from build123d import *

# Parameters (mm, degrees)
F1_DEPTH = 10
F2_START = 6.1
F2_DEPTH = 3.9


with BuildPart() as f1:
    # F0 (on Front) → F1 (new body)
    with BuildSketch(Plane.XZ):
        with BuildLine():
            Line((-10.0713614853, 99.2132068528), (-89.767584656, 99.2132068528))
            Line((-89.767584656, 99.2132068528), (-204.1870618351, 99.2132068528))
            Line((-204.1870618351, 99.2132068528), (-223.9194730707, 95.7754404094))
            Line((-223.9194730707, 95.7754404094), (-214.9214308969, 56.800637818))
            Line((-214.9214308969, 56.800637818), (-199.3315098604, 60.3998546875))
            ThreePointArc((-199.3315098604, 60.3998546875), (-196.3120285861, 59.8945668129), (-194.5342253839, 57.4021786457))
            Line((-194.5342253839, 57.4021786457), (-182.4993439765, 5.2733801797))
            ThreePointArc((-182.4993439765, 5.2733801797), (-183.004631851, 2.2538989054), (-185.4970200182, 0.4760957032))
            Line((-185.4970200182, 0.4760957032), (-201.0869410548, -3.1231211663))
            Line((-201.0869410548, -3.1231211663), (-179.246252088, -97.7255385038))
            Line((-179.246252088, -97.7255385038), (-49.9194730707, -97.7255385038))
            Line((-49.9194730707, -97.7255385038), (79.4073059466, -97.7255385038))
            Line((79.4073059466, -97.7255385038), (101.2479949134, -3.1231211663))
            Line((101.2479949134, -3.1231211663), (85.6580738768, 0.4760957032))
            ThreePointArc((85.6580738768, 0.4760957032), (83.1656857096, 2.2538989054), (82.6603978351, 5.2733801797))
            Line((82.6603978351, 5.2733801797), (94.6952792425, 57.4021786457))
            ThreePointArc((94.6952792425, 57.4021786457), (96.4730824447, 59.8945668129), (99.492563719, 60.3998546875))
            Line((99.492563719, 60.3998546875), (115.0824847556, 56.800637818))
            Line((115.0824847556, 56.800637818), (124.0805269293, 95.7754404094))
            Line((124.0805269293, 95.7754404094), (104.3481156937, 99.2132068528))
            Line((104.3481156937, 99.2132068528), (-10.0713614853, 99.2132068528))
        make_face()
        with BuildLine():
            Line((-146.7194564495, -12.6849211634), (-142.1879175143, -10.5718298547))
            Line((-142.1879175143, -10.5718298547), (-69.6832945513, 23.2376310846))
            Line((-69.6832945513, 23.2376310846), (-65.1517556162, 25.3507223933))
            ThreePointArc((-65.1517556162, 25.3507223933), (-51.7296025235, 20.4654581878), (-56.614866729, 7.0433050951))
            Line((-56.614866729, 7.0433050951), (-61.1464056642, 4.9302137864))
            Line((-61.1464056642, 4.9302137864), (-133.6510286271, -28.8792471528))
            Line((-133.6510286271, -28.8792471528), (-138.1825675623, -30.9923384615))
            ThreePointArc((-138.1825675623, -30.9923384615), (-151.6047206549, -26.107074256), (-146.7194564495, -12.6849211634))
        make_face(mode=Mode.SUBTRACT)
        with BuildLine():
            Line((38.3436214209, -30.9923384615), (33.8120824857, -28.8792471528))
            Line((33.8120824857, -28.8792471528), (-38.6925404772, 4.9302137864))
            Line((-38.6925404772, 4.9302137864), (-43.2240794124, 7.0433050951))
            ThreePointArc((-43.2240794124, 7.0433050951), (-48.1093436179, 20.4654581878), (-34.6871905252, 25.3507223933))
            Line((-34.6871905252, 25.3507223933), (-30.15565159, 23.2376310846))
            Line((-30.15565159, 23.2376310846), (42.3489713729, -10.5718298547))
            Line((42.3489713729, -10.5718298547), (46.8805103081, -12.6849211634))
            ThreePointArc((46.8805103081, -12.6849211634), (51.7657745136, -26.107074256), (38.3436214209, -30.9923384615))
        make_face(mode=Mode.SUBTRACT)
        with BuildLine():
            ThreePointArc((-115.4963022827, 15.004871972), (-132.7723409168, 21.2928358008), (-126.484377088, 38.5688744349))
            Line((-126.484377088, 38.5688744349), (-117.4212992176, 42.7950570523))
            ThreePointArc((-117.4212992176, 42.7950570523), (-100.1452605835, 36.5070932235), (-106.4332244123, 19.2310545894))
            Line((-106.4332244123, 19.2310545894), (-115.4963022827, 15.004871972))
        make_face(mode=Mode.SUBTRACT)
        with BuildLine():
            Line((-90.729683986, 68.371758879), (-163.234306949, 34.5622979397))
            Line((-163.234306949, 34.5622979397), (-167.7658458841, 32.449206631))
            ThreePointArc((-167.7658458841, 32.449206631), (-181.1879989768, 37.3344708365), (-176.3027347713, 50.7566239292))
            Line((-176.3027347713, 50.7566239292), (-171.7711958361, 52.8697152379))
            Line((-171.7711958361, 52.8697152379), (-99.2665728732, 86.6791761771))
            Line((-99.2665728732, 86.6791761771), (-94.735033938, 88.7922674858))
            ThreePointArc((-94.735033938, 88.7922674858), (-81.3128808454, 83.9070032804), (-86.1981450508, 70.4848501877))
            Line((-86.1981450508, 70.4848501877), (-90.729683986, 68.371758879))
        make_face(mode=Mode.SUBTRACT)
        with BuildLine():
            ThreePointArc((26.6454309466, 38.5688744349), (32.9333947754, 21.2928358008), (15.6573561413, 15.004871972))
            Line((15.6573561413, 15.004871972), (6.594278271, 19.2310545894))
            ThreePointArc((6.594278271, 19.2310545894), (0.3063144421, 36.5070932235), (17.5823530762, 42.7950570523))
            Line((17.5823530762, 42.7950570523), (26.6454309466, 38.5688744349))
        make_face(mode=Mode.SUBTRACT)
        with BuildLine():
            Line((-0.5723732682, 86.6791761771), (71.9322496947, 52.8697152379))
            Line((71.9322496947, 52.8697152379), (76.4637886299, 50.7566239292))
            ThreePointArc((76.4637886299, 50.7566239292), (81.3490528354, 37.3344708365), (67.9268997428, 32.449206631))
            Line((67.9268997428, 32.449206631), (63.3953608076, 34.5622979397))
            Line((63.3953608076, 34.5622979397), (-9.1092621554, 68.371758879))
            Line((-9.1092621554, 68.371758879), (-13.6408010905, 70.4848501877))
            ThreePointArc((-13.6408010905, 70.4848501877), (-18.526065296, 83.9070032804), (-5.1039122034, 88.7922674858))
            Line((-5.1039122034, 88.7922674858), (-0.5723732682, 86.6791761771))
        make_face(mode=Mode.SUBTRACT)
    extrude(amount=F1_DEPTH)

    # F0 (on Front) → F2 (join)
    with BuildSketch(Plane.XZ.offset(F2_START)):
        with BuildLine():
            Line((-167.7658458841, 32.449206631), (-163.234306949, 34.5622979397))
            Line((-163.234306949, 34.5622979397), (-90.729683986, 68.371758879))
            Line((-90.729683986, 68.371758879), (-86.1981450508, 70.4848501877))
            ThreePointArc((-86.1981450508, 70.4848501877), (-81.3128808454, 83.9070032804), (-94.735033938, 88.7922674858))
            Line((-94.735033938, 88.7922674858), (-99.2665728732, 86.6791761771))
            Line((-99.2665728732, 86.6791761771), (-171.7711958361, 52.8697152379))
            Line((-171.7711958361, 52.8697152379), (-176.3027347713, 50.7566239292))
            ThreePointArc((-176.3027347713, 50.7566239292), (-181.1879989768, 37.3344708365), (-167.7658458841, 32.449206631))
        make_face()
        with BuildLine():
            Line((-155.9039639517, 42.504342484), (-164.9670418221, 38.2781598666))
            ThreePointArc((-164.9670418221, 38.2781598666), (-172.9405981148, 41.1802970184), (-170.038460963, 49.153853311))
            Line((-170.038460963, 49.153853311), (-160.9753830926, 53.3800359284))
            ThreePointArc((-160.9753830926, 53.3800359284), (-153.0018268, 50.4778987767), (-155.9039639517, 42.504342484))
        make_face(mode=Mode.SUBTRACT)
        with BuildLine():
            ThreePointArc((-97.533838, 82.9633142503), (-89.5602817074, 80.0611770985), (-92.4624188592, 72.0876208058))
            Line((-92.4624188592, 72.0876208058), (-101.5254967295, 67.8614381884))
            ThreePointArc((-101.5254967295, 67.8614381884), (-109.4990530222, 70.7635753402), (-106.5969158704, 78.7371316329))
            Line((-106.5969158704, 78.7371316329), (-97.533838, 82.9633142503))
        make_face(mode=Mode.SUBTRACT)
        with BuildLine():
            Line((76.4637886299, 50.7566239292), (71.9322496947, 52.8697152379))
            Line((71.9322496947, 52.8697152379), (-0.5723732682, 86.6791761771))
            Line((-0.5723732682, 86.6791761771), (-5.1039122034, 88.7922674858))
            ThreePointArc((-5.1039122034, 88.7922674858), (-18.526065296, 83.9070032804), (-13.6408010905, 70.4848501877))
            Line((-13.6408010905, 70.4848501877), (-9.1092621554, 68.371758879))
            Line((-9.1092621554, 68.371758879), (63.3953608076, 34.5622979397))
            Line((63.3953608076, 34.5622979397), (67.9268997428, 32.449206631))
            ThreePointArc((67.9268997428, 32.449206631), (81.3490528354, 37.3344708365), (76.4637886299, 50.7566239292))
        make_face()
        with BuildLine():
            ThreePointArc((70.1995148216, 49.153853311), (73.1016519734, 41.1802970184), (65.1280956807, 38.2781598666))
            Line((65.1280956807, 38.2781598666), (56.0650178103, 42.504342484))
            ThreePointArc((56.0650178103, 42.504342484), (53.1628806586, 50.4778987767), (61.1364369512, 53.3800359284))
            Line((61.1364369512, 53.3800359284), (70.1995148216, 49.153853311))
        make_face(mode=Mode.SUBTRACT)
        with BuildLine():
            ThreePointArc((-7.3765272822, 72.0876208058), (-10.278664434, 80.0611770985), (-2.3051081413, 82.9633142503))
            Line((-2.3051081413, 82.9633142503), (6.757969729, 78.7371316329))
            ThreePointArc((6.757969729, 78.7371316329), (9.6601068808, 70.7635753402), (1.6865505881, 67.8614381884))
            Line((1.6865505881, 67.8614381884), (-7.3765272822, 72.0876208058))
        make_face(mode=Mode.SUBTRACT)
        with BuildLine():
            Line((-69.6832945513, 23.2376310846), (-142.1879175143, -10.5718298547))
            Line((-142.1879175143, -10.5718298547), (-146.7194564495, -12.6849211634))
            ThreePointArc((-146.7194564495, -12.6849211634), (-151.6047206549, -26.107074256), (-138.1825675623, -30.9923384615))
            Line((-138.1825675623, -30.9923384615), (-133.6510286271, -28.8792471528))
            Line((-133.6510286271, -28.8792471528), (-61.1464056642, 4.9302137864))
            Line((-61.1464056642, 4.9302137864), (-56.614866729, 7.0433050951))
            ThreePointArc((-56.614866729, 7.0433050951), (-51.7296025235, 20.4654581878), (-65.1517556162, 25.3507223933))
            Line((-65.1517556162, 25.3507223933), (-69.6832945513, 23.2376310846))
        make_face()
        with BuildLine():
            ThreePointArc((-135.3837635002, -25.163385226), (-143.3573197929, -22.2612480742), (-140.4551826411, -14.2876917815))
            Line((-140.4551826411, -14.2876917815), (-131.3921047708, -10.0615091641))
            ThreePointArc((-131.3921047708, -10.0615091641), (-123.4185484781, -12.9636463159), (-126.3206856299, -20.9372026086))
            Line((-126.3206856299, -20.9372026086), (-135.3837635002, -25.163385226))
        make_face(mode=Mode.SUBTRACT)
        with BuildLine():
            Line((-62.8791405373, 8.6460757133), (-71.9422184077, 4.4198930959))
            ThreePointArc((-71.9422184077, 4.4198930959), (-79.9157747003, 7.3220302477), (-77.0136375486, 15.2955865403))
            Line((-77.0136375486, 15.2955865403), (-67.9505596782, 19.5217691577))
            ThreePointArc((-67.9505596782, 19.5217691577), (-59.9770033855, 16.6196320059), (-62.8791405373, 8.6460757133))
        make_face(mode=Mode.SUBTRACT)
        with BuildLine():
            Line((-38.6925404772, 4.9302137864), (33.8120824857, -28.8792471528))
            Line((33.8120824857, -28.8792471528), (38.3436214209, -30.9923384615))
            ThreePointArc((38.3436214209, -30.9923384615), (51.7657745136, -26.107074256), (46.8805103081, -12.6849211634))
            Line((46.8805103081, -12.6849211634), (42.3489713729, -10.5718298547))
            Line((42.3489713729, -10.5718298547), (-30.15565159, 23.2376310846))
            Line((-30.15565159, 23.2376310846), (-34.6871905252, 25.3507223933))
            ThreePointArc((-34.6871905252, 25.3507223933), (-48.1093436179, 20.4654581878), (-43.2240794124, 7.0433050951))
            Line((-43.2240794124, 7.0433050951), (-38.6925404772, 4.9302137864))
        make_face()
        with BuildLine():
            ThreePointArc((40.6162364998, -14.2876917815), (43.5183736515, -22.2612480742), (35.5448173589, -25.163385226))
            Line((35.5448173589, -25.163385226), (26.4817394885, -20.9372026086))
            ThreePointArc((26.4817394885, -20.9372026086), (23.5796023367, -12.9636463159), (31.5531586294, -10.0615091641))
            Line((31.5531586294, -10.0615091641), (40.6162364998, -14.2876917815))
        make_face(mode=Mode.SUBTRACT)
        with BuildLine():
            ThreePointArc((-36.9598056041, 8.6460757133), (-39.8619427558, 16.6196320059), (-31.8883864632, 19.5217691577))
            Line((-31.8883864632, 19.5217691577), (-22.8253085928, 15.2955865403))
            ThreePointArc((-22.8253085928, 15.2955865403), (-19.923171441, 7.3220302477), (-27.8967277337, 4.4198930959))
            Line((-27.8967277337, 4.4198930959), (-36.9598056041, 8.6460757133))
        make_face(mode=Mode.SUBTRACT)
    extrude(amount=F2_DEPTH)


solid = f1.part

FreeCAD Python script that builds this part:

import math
import FreeCAD as App
import Part
import Sketcher
Q = App.Units.Quantity

doc = App.newDocument("Part")
params = doc.addObject("Spreadsheet::Sheet", "Params")
for row, (alias, value) in enumerate([
    ("sketch1_radius", "4 mm"),
    ("sketch1_radius2", "13 mm"),
    ("sketch1_radius3", "10.1 mm"),
    ("sketch1_length", "40 mm"),
    ("sketch1_length2", "16 mm"),
    ("pad1_length", "10 mm"),
    ("sketch2_radius", "6 mm"),
    ("sketch2_radius2", "10.1 mm"),
    ("sketch2_length", "5 mm"),
    ("sketch2_length2", "80 mm"),
    ("sketch2_length3", "10 mm"),
    ("pad2_length", "3.9 mm"),
], start=1):
    params.set(f"A{row}", alias)
    params.set(f"B{row}", "=" + value)
    params.setAlias(f"B{row}", alias)

body = doc.addObject("PartDesign::Body", "Body")

# Sketch on XZ plane
sketch1 = doc.addObject("Sketcher::SketchObject", "Sketch")
body.addObject(sketch1)
sketch1.AttachmentSupport = (doc.XZ_Plane, [""])
sketch1.MapMode = "FlatFace"
sketch1.addGeometry(Part.LineSegment(App.Vector(-204.187062, 99.213207, 0), App.Vector(-223.919473, 95.77544, 0)), False)
sketch1.addGeometry(Part.LineSegment(App.Vector(-223.919473, 95.77544, 0), App.Vector(-214.921431, 56.800638, 0)), False)
sketch1.addGeometry(Part.LineSegment(App.Vector(-214.921431, 56.800638, 0), App.Vector(-199.33151, 60.399855, 0)), False)
sketch1.addGeometry(Part.ArcOfCircle(Part.Circle(App.Vector(-198.431706, 56.502374, 0), App.Vector(0, 0, 1), 4), math.radians(13), math.radians(103)), False)
sketch1.addGeometry(Part.LineSegment(App.Vector(-194.534225, 57.402179, 0), App.Vector(-182.499344, 5.27338, 0)), False)
sketch1.addGeometry(Part.ArcOfCircle(Part.Circle(App.Vector(-186.396824, 4.373576, 0), App.Vector(0, 0, 1), 4), math.radians(-77), math.radians(13)), False)
sketch1.addGeometry(Part.LineSegment(App.Vector(-185.49702, 0.476096, 0), App.Vector(-201.086941, -3.123121, 0)), False)
sketch1.addGeometry(Part.LineSegment(App.Vector(-201.086941, -3.123121, 0), App.Vector(-179.246252, -97.725539, 0)), False)
sketch1.addGeometry(Part.LineSegment(App.Vector(-179.246252, -97.725539, 0), App.Vector(79.407306, -97.725539, 0)), False)
sketch1.addGeometry(Part.LineSegment(App.Vector(79.407306, -97.725539, 0), App.Vector(101.247995, -3.123121, 0)), False)
sketch1.addGeometry(Part.LineSegment(App.Vector(101.247995, -3.123121, 0), App.Vector(85.658074, 0.476096, 0)), False)
sketch1.addGeometry(Part.ArcOfCircle(Part.Circle(App.Vector(86.557878, 4.373576, 0), App.Vector(0, 0, 1), 4), math.radians(167), math.radians(257)), False)
sketch1.addGeometry(Part.LineSegment(App.Vector(82.660398, 5.27338, 0), App.Vector(94.695279, 57.402179, 0)), False)
sketch1.addGeometry(Part.ArcOfCircle(Part.Circle(App.Vector(98.59276, 56.502374, 0), App.Vector(0, 0, 1), 4), math.radians(77), math.radians(167)), False)
sketch1.addGeometry(Part.LineSegment(App.Vector(99.492564, 60.399855, 0), App.Vector(115.082485, 56.800638, 0)), False)
sketch1.addGeometry(Part.LineSegment(App.Vector(115.082485, 56.800638, 0), App.Vector(124.080527, 95.77544, 0)), False)
sketch1.addGeometry(Part.LineSegment(App.Vector(124.080527, 95.77544, 0), App.Vector(104.348116, 99.213207, 0)), False)
sketch1.addGeometry(Part.LineSegment(App.Vector(104.348116, 99.213207, 0), App.Vector(-204.187062, 99.213207, 0)), False)
sketch1.addGeometry(Part.ArcOfCircle(Part.Circle(App.Vector(-142.451012, -21.83863, 0), App.Vector(0, 0, 1), 10.1), math.radians(115), math.radians(295)), False)
sketch1.addGeometry(Part.LineSegment(App.Vector(-146.719456, -12.684921, 0), App.Vector(-142.187918, -10.57183, 0)), False)
sketch1.addGeometry(Part.LineSegment(App.Vector(-142.187918, -10.57183, 0), App.Vector(-69.683295, 23.237631, 0)), False)
sketch1.addGeometry(Part.LineSegment(App.Vector(-69.683295, 23.237631, 0), App.Vector(-65.151756, 25.350722, 0)), False)
sketch1.addGeometry(Part.ArcOfCircle(Part.Circle(App.Vector(-60.883311, 16.197014, 0), App.Vector(0, 0, 1), 10.1), math.radians(-65), math.radians(115)), False)
sketch1.addGeometry(Part.LineSegment(App.Vector(-56.614867, 7.043305, 0), App.Vector(-61.146406, 4.930214, 0)), False)
sketch1.addGeometry(Part.LineSegment(App.Vector(-61.146406, 4.930214, 0), App.Vector(-133.651029, -28.879247, 0)), False)
sketch1.addGeometry(Part.LineSegment(App.Vector(-133.651029, -28.879247, 0), App.Vector(-138.182568, -30.992338, 0)), False)
sketch1.addGeometry(Part.ArcOfCircle(Part.Circle(App.Vector(42.612066, -21.83863, 0), App.Vector(0, 0, 1), 10.1), math.radians(-115), math.radians(65)), False)
sketch1.addGeometry(Part.LineSegment(App.Vector(38.343621, -30.992338, 0), App.Vector(33.812082, -28.879247, 0)), False)
sketch1.addGeometry(Part.LineSegment(App.Vector(33.812082, -28.879247, 0), App.Vector(-38.69254, 4.930214, 0)), False)
sketch1.addGeometry(Part.LineSegment(App.Vector(-38.69254, 4.930214, 0), App.Vector(-43.224079, 7.043305, 0)), False)
sketch1.addGeometry(Part.ArcOfCircle(Part.Circle(App.Vector(-38.955635, 16.197014, 0), App.Vector(0, 0, 1), 10.1), math.radians(65), math.radians(245)), False)
sketch1.addGeometry(Part.LineSegment(App.Vector(-34.687191, 25.350722, 0), App.Vector(-30.155652, 23.237631, 0)), False)
sketch1.addGeometry(Part.LineSegment(App.Vector(-30.155652, 23.237631, 0), App.Vector(42.348971, -10.57183, 0)), False)
sketch1.addGeometry(Part.LineSegment(App.Vector(42.348971, -10.57183, 0), App.Vector(46.88051, -12.684921, 0)), False)
sketch1.addGeometry(Part.LineSegment(App.Vector(-106.433224, 19.231055, 0), App.Vector(-115.496302, 15.004872, 0)), False)
sketch1.addGeometry(Part.ArcOfCircle(Part.Circle(App.Vector(-120.99034, 26.786873, 0), App.Vector(0, 0, 1), 13), math.radians(115), math.radians(295)), False)
sketch1.addGeometry(Part.LineSegment(App.Vector(-126.484377, 38.568874, 0), App.Vector(-117.421299, 42.795057, 0)), False)
sketch1.addGeometry(Part.ArcOfCircle(Part.Circle(App.Vector(-111.927262, 31.013056, 0), App.Vector(0, 0, 1), 13), math.radians(-65), math.radians(115)), False)
sketch1.addGeometry(Part.LineSegment(App.Vector(-86.198145, 70.48485, 0), App.Vector(-90.729684, 68.371759, 0)), False)
sketch1.addGeometry(Part.LineSegment(App.Vector(-90.729684, 68.371759, 0), App.Vector(-163.234307, 34.562298, 0)), False)
sketch1.addGeometry(Part.LineSegment(App.Vector(-163.234307, 34.562298, 0), App.Vector(-167.765846, 32.449207, 0)), False)
sketch1.addGeometry(Part.ArcOfCircle(Part.Circle(App.Vector(-172.03429, 41.602915, 0), App.Vector(0, 0, 1), 10.1), math.radians(115), math.radians(295)), False)
sketch1.addGeometry(Part.LineSegment(App.Vector(-176.302735, 50.756624, 0), App.Vector(-171.771196, 52.869715, 0)), False)
sketch1.addGeometry(Part.LineSegment(App.Vector(-171.771196, 52.869715, 0), App.Vector(-99.266573, 86.679176, 0)), False)
sketch1.addGeometry(Part.LineSegment(App.Vector(-99.266573, 86.679176, 0), App.Vector(-94.735034, 88.792267, 0)), False)
sketch1.addGeometry(Part.ArcOfCircle(Part.Circle(App.Vector(-90.466589, 79.638559, 0), App.Vector(0, 0, 1), 10.1), math.radians(-65), math.radians(115)), False)
sketch1.addGeometry(Part.LineSegment(App.Vector(17.582353, 42.795057, 0), App.Vector(26.645431, 38.568874, 0)), False)
sketch1.addGeometry(Part.ArcOfCircle(Part.Circle(App.Vector(21.151394, 26.786873, 0), App.Vector(0, 0, 1), 13), math.radians(-115), math.radians(65)), False)
sketch1.addGeometry(Part.LineSegment(App.Vector(15.657356, 15.004872, 0), App.Vector(6.594278, 19.231055, 0)), False)
sketch1.addGeometry(Part.ArcOfCircle(Part.Circle(App.Vector(12.088316, 31.013056, 0), App.Vector(0, 0, 1), 13), math.radians(65), math.radians(245)), False)
sketch1.addGeometry(Part.LineSegment(App.Vector(-5.103912, 88.792267, 0), App.Vector(-0.572373, 86.679176, 0)), False)
sketch1.addGeometry(Part.LineSegment(App.Vector(-0.572373, 86.679176, 0), App.Vector(71.93225, 52.869715, 0)), False)
sketch1.addGeometry(Part.LineSegment(App.Vector(71.93225, 52.869715, 0), App.Vector(76.463789, 50.756624, 0)), False)
sketch1.addGeometry(Part.ArcOfCircle(Part.Circle(App.Vector(72.195344, 41.602915, 0), App.Vector(0, 0, 1), 10.1), math.radians(-115), math.radians(65)), False)
sketch1.addGeometry(Part.LineSegment(App.Vector(67.9269, 32.449207, 0), App.Vector(63.395361, 34.562298, 0)), False)
sketch1.addGeometry(Part.LineSegment(App.Vector(63.395361, 34.562298, 0), App.Vector(-9.109262, 68.371759, 0)), False)
sketch1.addGeometry(Part.LineSegment(App.Vector(-9.109262, 68.371759, 0), App.Vector(-13.640801, 70.48485, 0)), False)
sketch1.addGeometry(Part.ArcOfCircle(Part.Circle(App.Vector(-9.372357, 79.638559, 0), App.Vector(0, 0, 1), 10.1), math.radians(65), math.radians(245)), False)
sketch1.addConstraint(Sketcher.Constraint("Coincident", 0, 2, 1, 1))
sketch1.addConstraint(Sketcher.Constraint("Coincident", 1, 2, 2, 1))
sketch1.addConstraint(Sketcher.Constraint("Tangent", 2, 2, 3, 2))
sketch1.addConstraint(Sketcher.Constraint("Tangent", 3, 1, 4, 1))
sketch1.addConstraint(Sketcher.Constraint("Tangent", 4, 2, 5, 2))
sketch1.addConstraint(Sketcher.Constraint("Tangent", 5, 1, 6, 1))
sketch1.addConstraint(Sketcher.Constraint("Coincident", 6, 2, 7, 1))
sketch1.addConstraint(Sketcher.Constraint("Coincident", 7, 2, 8, 1))
sketch1.addConstraint(Sketcher.Constraint("Coincident", 8, 2, 9, 1))
sketch1.addConstraint(Sketcher.Constraint("Coincident", 9, 2, 10, 1))
sketch1.addConstraint(Sketcher.Constraint("Tangent", 10, 2, 11, 2))
sketch1.addConstraint(Sketcher.Constraint("Tangent", 11, 1, 12, 1))
sketch1.addConstraint(Sketcher.Constraint("Tangent", 12, 2, 13, 2))
sketch1.addConstraint(Sketcher.Constraint("Tangent", 13, 1, 14, 1))
sketch1.addConstraint(Sketcher.Constraint("Coincident", 14, 2, 15, 1))
sketch1.addConstraint(Sketcher.Constraint("Coincident", 15, 2, 16, 1))
sketch1.addConstraint(Sketcher.Constraint("Coincident", 16, 2, 17, 1))
sketch1.addConstraint(Sketcher.Constraint("Coincident", 17, 2, 0, 1))
sketch1.addConstraint(Sketcher.Constraint("Tangent", 18, 1, 19, 1))
sketch1.addConstraint(Sketcher.Constraint("Coincident", 19, 2, 20, 1))
sketch1.addConstraint(Sketcher.Constraint("Coincident", 20, 2, 21, 1))
sketch1.addConstraint(Sketcher.Constraint("Tangent", 21, 2, 22, 2))
sketch1.addConstraint(Sketcher.Constraint("Tangent", 22, 1, 23, 1))
sketch1.addConstraint(Sketcher.Constraint("Coincident", 23, 2, 24, 1))
sketch1.addConstraint(Sketcher.Constraint("Coincident", 24, 2, 25, 1))
sketch1.addConstraint(Sketcher.Constraint("Tangent", 25, 2, 18, 2))
sketch1.addConstraint(Sketcher.Constraint("Tangent", 26, 1, 27, 1))
sketch1.addConstraint(Sketcher.Constraint("Coincident", 27, 2, 28, 1))
sketch1.addConstraint(Sketcher.Constraint("Coincident", 28, 2, 29, 1))
sketch1.addConstraint(Sketcher.Constraint("Tangent", 29, 2, 30, 2))
sketch1.addConstraint(Sketcher.Constraint("Tangent", 30, 1, 31, 1))
sketch1.addConstraint(Sketcher.Constraint("Coincident", 31, 2, 32, 1))
sketch1.addConstraint(Sketcher.Constraint("Coincident", 32, 2, 33, 1))
sketch1.addConstraint(Sketcher.Constraint("Tangent", 33, 2, 26, 2))
sketch1.addConstraint(Sketcher.Constraint("Tangent", 34, 2, 35, 2))
sketch1.addConstraint(Sketcher.Constraint("Tangent", 35, 1, 36, 1))
sketch1.addConstraint(Sketcher.Constraint("Tangent", 36, 2, 37, 2))
sketch1.addConstraint(Sketcher.Constraint("Tangent", 37, 1, 34, 1))
sketch1.addConstraint(Sketcher.Constraint("Coincident", 38, 2, 39, 1))
sketch1.addConstraint(Sketcher.Constraint("Coincident", 39, 2, 40, 1))
sketch1.addConstraint(Sketcher.Constraint("Tangent", 40, 2, 41, 2))
sketch1.addConstraint(Sketcher.Constraint("Tangent", 41, 1, 42, 1))
sketch1.addConstraint(Sketcher.Constraint("Coincident", 42, 2, 43, 1))
sketch1.addConstraint(Sketcher.Constraint("Coincident", 43, 2, 44, 1))
sketch1.addConstraint(Sketcher.Constraint("Tangent", 44, 2, 45, 2))
sketch1.addConstraint(Sketcher.Constraint("Tangent", 45, 1, 38, 1))
sketch1.addConstraint(Sketcher.Constraint("Tangent", 46, 2, 47, 2))
sketch1.addConstraint(Sketcher.Constraint("Tangent", 47, 1, 48, 1))
sketch1.addConstraint(Sketcher.Constraint("Tangent", 48, 2, 49, 2))
sketch1.addConstraint(Sketcher.Constraint("Tangent", 49, 1, 46, 1))
sketch1.addConstraint(Sketcher.Constraint("Coincident", 50, 2, 51, 1))
sketch1.addConstraint(Sketcher.Constraint("Coincident", 51, 2, 52, 1))
sketch1.addConstraint(Sketcher.Constraint("Tangent", 52, 2, 53, 2))
sketch1.addConstraint(Sketcher.Constraint("Tangent", 53, 1, 54, 1))
sketch1.addConstraint(Sketcher.Constraint("Coincident", 54, 2, 55, 1))
sketch1.addConstraint(Sketcher.Constraint("Coincident", 55, 2, 56, 1))
sketch1.addConstraint(Sketcher.Constraint("Tangent", 56, 2, 57, 2))
sketch1.addConstraint(Sketcher.Constraint("Tangent", 57, 1, 50, 1))
sketch1.addConstraint(Sketcher.Constraint("Horizontal", 8))
sketch1.addConstraint(Sketcher.Constraint("Horizontal", 17))
sketch1.addConstraint(Sketcher.Constraint("Equal", 3, 5))
sketch1.addConstraint(Sketcher.Constraint("Equal", 5, 11))
sketch1.addConstraint(Sketcher.Constraint("Equal", 11, 13))
sketch1.addConstraint(Sketcher.Constraint("Equal", 18, 22))
sketch1.addConstraint(Sketcher.Constraint("Equal", 22, 26))
sketch1.addConstraint(Sketcher.Constraint("Equal", 26, 30))
sketch1.addConstraint(Sketcher.Constraint("Equal", 35, 37))
sketch1.addConstraint(Sketcher.Constraint("Equal", 30, 41))
sketch1.addConstraint(Sketcher.Constraint("Equal", 41, 45))
sketch1.addConstraint(Sketcher.Constraint("Equal", 37, 47))
sketch1.addConstraint(Sketcher.Constraint("Equal", 47, 49))
sketch1.addConstraint(Sketcher.Constraint("Equal", 45, 53))
sketch1.addConstraint(Sketcher.Constraint("Equal", 53, 57))
sketch1.addConstraint(Sketcher.Constraint("Perpendicular", 1, 2))
sketch1.addConstraint(Sketcher.Constraint("Perpendicular", 2, 4))
sketch1.addConstraint(Sketcher.Constraint("Perpendicular", 4, 6))
sketch1.addConstraint(Sketcher.Constraint("Perpendicular", 6, 7))
sketch1.addConstraint(Sketcher.Constraint("Perpendicular", 9, 10))
sketch1.addConstraint(Sketcher.Constraint("Perpendicular", 10, 12))
sketch1.addConstraint(Sketcher.Constraint("Perpendicular", 12, 14))
sketch1.addConstraint(Sketcher.Constraint("Perpendicular", 14, 15))
sketch1.addConstraint(Sketcher.Constraint("Parallel", 19, 20))
sketch1.addConstraint(Sketcher.Constraint("Parallel", 20, 21))
sketch1.addConstraint(Sketcher.Constraint("Parallel", 21, 23))
sketch1.addConstraint(Sketcher.Constraint("Parallel", 23, 24))
sketch1.addConstraint(Sketcher.Constraint("Parallel", 27, 28))
sketch1.addConstraint(Sketcher.Constraint("Parallel", 28, 29))
sketch1.addConstraint(Sketcher.Constraint("Parallel", 29, 31))
sketch1.addConstraint(Sketcher.Constraint("Parallel", 31, 32))
sketch1.addConstraint(Sketcher.Constraint("Parallel", 25, 34))
sketch1.addConstraint(Sketcher.Constraint("Parallel", 36, 38))
sketch1.addConstraint(Sketcher.Constraint("Parallel", 38, 39))
sketch1.addConstraint(Sketcher.Constraint("Parallel", 39, 40))
sketch1.addConstraint(Sketcher.Constraint("Parallel", 40, 42))
sketch1.addConstraint(Sketcher.Constraint("Parallel", 42, 43))
sketch1.addConstraint(Sketcher.Constraint("Parallel", 33, 46))
sketch1.addConstraint(Sketcher.Constraint("Parallel", 48, 50))
sketch1.addConstraint(Sketcher.Constraint("Parallel", 50, 51))
sketch1.addConstraint(Sketcher.Constraint("Parallel", 51, 52))
sketch1.addConstraint(Sketcher.Constraint("Parallel", 52, 54))
sketch1.addConstraint(Sketcher.Constraint("Parallel", 54, 55))
sketch1.addConstraint(Sketcher.Constraint("Horizontal", 5, 3, 11, 3))
sketch1.addConstraint(Sketcher.Constraint("Horizontal", 3, 3, 13, 3))
sketch1.addConstraint(Sketcher.Constraint("Horizontal", 18, 3, 26, 3))
sketch1.addConstraint(Sketcher.Constraint("Horizontal", 22, 3, 30, 3))
sketch1.addConstraint(Sketcher.Constraint("Horizontal", 35, 3, 47, 3))
sketch1.addConstraint(Sketcher.Constraint("Horizontal", 37, 3, 49, 3))
sketch1.addConstraint(Sketcher.Constraint("Horizontal", 41, 3, 53, 3))
sketch1.addConstraint(Sketcher.Constraint("Horizontal", 45, 3, 57, 3))
sketch1.addConstraint(Sketcher.Constraint("Horizontal", 6, 2, 9, 2))
sketch1.addConstraint(Sketcher.Constraint("Horizontal", 5, 1, 10, 2))
sketch1.addConstraint(Sketcher.Constraint("Horizontal", 1, 2, 14, 2))
sketch1.addConstraint(Sketcher.Constraint("Horizontal", 0, 2, 15, 2))
sketch1.addConstraint(Sketcher.Constraint("Horizontal", 25, 2, 26, 1))
sketch1.addConstraint(Sketcher.Constraint("Horizontal", 24, 2, 27, 2))
sketch1.addConstraint(Sketcher.Constraint("Horizontal", 23, 2, 28, 2))
sketch1.addConstraint(Sketcher.Constraint("Horizontal", 20, 2, 31, 2))
sketch1.addConstraint(Sketcher.Constraint("Horizontal", 19, 2, 32, 2))
sketch1.addConstraint(Sketcher.Constraint("Horizontal", 43, 2, 50, 2))
sketch1.addConstraint(Sketcher.Constraint("Horizontal", 42, 2, 51, 2))
sketch1.addConstraint(Sketcher.Constraint("Horizontal", 39, 2, 54, 2))
sketch1.addConstraint(Sketcher.Constraint("Horizontal", 38, 2, 55, 2))
sketch1.addConstraint(Sketcher.Constraint("Equal", 2, 6))
sketch1.addConstraint(Sketcher.Constraint("Equal", 0, 16))
sketch1.addConstraint(Sketcher.Constraint("Equal", 19, 21))
sketch1.addConstraint(Sketcher.Constraint("Equal", 21, 23))
sketch1.addConstraint(Sketcher.Constraint("Equal", 20, 24))
sketch1.addConstraint(Sketcher.Constraint("Equal", 33, 38))
sketch1.addConstraint(Sketcher.Constraint("Equal", 32, 39))
sketch1.addConstraint(Sketcher.Constraint("Equal", 38, 40))
sketch1.addConstraint(Sketcher.Constraint("Equal", 40, 42))
sketch1.addConstraint(Sketcher.Constraint("Equal", 39, 43))
sketch1.addConstraint(Sketcher.Constraint("Radius", 3, 4.0))
sketch1.addConstraint(Sketcher.Constraint("Radius", 35, 13.0))
sketch1.addConstraint(Sketcher.Constraint("Radius", 18, 10.1))
sketch1.addConstraint(Sketcher.Constraint("Angle", 1, Q("-77 deg")))
sketch1.addConstraint(Sketcher.Constraint("Angle", 19, Q("25 deg")))
sketch1.addConstraint(Sketcher.Constraint("Distance", 1, 40.0))
sketch1.addConstraint(Sketcher.Constraint("Distance", 2, 16.0))
sketch1.addConstraint(Sketcher.Constraint("Distance", 19, 5.0))
sketch1.addConstraint(Sketcher.Constraint("Distance", 20, 80.0))
sketch1.addConstraint(Sketcher.Constraint("Distance", 34, 10.0))
sketch1.addConstraint(Sketcher.Constraint("Distance", 4, 53.5))
sketch1.addConstraint(Sketcher.Constraint("DistanceX", 8, 1, 8, 2, 258.653558))
sketch1.addConstraint(Sketcher.Constraint("DistanceX", 36, 2, -1, 1, 117.421299))
sketch1.addConstraint(Sketcher.Constraint("DistanceX", -1, 1, 53, 1, 67.9269))
sketch1.addConstraint(Sketcher.Constraint("Distance", 7, 97.09085))
sketch1.addConstraint(Sketcher.Constraint("DistanceX", 17, 2, 17, 1, 308.535178))
sketch1.addConstraint(Sketcher.Constraint("DistanceX", -1, 1, 11, 3, 86.557878))
sketch1.addConstraint(Sketcher.Constraint("DistanceY", 18, 3, -1, 1, 21.83863))
sketch1.addConstraint(Sketcher.Constraint("DistanceX", 22, 3, -1, 1, 60.883311))
sketch1.addConstraint(Sketcher.Constraint("DistanceX", 41, 3, -1, 1, 172.03429))
sketch1.addConstraint(Sketcher.Constraint("DistanceY", -1, 1, 45, 3, 79.638559))
sketch1.addConstraint(Sketcher.Constraint("DistanceY", -1, 1, 0, 2, 95.77544))
sketch1.addConstraint(Sketcher.Constraint("DistanceX", -1, 1, 26, 1, 38.343621))
sketch1.addConstraint(Sketcher.Constraint("DistanceY", -1, 1, 34, 2, 15.004872))
sketch1.addConstraint(Sketcher.Constraint("DistanceX", -1, 1, 46, 2, 26.645431))
sketch1.addConstraint(Sketcher.Constraint("Distance", 0, 20.029635))
sketch1.setExpression("Constraints[132]", "Params.sketch1_radius")
sketch1.setExpression("Constraints[133]", "Params.sketch1_radius2")
sketch1.setExpression("Constraints[134]", "Params.sketch1_radius3")
sketch1.setExpression("Constraints[137]", "Params.sketch1_length")
sketch1.setExpression("Constraints[138]", "Params.sketch1_length2")
pad1 = doc.addObject("PartDesign::Pad", "Pad")
body.addObject(pad1)
pad1.Profile = sketch1
pad1.setExpression("Length", "Params.pad1_length")

# Sketch on XZ plane
sketch2 = doc.addObject("Sketcher::SketchObject", "Sketch001")
body.addObject(sketch2)
sketch2.AttachmentSupport = (doc.XZ_Plane, [""])
sketch2.MapMode = "FlatFace"
sketch2.AttachmentOffset = App.Placement(App.Vector(0, 0, 6.1), App.Rotation())
sketch2.addGeometry(Part.LineSegment(App.Vector(-167.765846, 32.449207, 0), App.Vector(-163.234307, 34.562298, 0)), False)
sketch2.addGeometry(Part.LineSegment(App.Vector(-163.234307, 34.562298, 0), App.Vector(-90.729684, 68.371759, 0)), False)
sketch2.addGeometry(Part.LineSegment(App.Vector(-90.729684, 68.371759, 0), App.Vector(-86.198145, 70.48485, 0)), False)
sketch2.addGeometry(Part.ArcOfCircle(Part.Circle(App.Vector(-90.466589, 79.638559, 0), App.Vector(0, 0, 1), 10.1), math.radians(-65), math.radians(115)), False)
sketch2.addGeometry(Part.LineSegment(App.Vector(-94.735034, 88.792267, 0), App.Vector(-99.266573, 86.679176, 0)), False)
sketch2.addGeometry(Part.LineSegment(App.Vector(-99.266573, 86.679176, 0), App.Vector(-171.771196, 52.869715, 0)), False)
sketch2.addGeometry(Part.LineSegment(App.Vector(-171.771196, 52.869715, 0), App.Vector(-176.302735, 50.756624, 0)), False)
sketch2.addGeometry(Part.ArcOfCircle(Part.Circle(App.Vector(-172.03429, 41.602915, 0), App.Vector(0, 0, 1), 10.1), math.radians(115), math.radians(295)), False)
sketch2.addGeometry(Part.ArcOfCircle(Part.Circle(App.Vector(-158.439674, 47.942189, 0), App.Vector(0, 0, 1), 6), math.radians(-65), math.radians(115)), False)
sketch2.addGeometry(Part.LineSegment(App.Vector(-155.903964, 42.504342, 0), App.Vector(-164.967042, 38.27816, 0)), False)
sketch2.addGeometry(Part.ArcOfCircle(Part.Circle(App.Vector(-167.502751, 43.716007, 0), App.Vector(0, 0, 1), 6), math.radians(115), math.radians(295)), False)
sketch2.addGeometry(Part.LineSegment(App.Vector(-170.038461, 49.153853, 0), App.Vector(-160.975383, 53.380036, 0)), False)
sketch2.addGeometry(Part.LineSegment(App.Vector(-106.596916, 78.737132, 0), App.Vector(-97.533838, 82.963314, 0)), False)
sketch2.addGeometry(Part.ArcOfCircle(Part.Circle(App.Vector(-94.998128, 77.525468, 0), App.Vector(0, 0, 1), 6), math.radians(-65), math.radians(115)), False)
sketch2.addGeometry(Part.LineSegment(App.Vector(-92.462419, 72.087621, 0), App.Vector(-101.525497, 67.861438, 0)), False)
sketch2.addGeometry(Part.ArcOfCircle(Part.Circle(App.Vector(-104.061206, 73.299285, 0), App.Vector(0, 0, 1), 6), math.radians(115), math.radians(295)), False)
sketch2.addGeometry(Part.LineSegment(App.Vector(76.463789, 50.756624, 0), App.Vector(71.93225, 52.869715, 0)), False)
sketch2.addGeometry(Part.LineSegment(App.Vector(71.93225, 52.869715, 0), App.Vector(-0.572373, 86.679176, 0)), False)
sketch2.addGeometry(Part.LineSegment(App.Vector(-0.572373, 86.679176, 0), App.Vector(-5.103912, 88.792267, 0)), False)
sketch2.addGeometry(Part.ArcOfCircle(Part.Circle(App.Vector(-9.372357, 79.638559, 0), App.Vector(0, 0, 1), 10.1), math.radians(65), math.radians(245)), False)
sketch2.addGeometry(Part.LineSegment(App.Vector(-13.640801, 70.48485, 0), App.Vector(-9.109262, 68.371759, 0)), False)
sketch2.addGeometry(Part.LineSegment(App.Vector(-9.109262, 68.371759, 0), App.Vector(63.395361, 34.562298, 0)), False)
sketch2.addGeometry(Part.LineSegment(App.Vector(63.395361, 34.562298, 0), App.Vector(67.9269, 32.449207, 0)), False)
sketch2.addGeometry(Part.ArcOfCircle(Part.Circle(App.Vector(72.195344, 41.602915, 0), App.Vector(0, 0, 1), 10.1), math.radians(-115), math.radians(65)), False)
sketch2.addGeometry(Part.LineSegment(App.Vector(61.136437, 53.380036, 0), App.Vector(70.199515, 49.153853, 0)), False)
sketch2.addGeometry(Part.ArcOfCircle(Part.Circle(App.Vector(67.663805, 43.716007, 0), App.Vector(0, 0, 1), 6), math.radians(-115), math.radians(65)), False)
sketch2.addGeometry(Part.LineSegment(App.Vector(65.128096, 38.27816, 0), App.Vector(56.065018, 42.504342, 0)), False)
sketch2.addGeometry(Part.ArcOfCircle(Part.Circle(App.Vector(58.600727, 47.942189, 0), App.Vector(0, 0, 1), 6), math.radians(65), math.radians(245)), False)
sketch2.addGeometry(Part.LineSegment(App.Vector(1.686551, 67.861438, 0), App.Vector(-7.376527, 72.087621, 0)), False)
sketch2.addGeometry(Part.ArcOfCircle(Part.Circle(App.Vector(-4.840818, 77.525468, 0), App.Vector(0, 0, 1), 6), math.radians(65), math.radians(245)), False)
sketch2.addGeometry(Part.LineSegment(App.Vector(-2.305108, 82.963314, 0), App.Vector(6.75797, 78.737132, 0)), False)
sketch2.addGeometry(Part.ArcOfCircle(Part.Circle(App.Vector(4.22226, 73.299285, 0), App.Vector(0, 0, 1), 6), math.radians(-115), math.radians(65)), False)
sketch2.addGeometry(Part.LineSegment(App.Vector(-69.683295, 23.237631, 0), App.Vector(-142.187918, -10.57183, 0)), False)
sketch2.addGeometry(Part.LineSegment(App.Vector(-142.187918, -10.57183, 0), App.Vector(-146.719456, -12.684921, 0)), False)
sketch2.addGeometry(Part.ArcOfCircle(Part.Circle(App.Vector(-142.451012, -21.83863, 0), App.Vector(0, 0, 1), 10.1), math.radians(115), math.radians(295)), False)
sketch2.addGeometry(Part.LineSegment(App.Vector(-138.182568, -30.992338, 0), App.Vector(-133.651029, -28.879247, 0)), False)
sketch2.addGeometry(Part.LineSegment(App.Vector(-133.651029, -28.879247, 0), App.Vector(-61.146406, 4.930214, 0)), False)
sketch2.addGeometry(Part.LineSegment(App.Vector(-61.146406, 4.930214, 0), App.Vector(-56.614867, 7.043305, 0)), False)
sketch2.addGeometry(Part.ArcOfCircle(Part.Circle(App.Vector(-60.883311, 16.197014, 0), App.Vector(0, 0, 1), 10.1), math.radians(-65), math.radians(115)), False)
sketch2.addGeometry(Part.LineSegment(App.Vector(-65.151756, 25.350722, 0), App.Vector(-69.683295, 23.237631, 0)), False)
sketch2.addGeometry(Part.LineSegment(App.Vector(-126.320686, -20.937203, 0), App.Vector(-135.383763, -25.163385, 0)), False)
sketch2.addGeometry(Part.ArcOfCircle(Part.Circle(App.Vector(-137.919473, -19.725539, 0), App.Vector(0, 0, 1), 6), math.radians(115), math.radians(295)), False)
sketch2.addGeometry(Part.LineSegment(App.Vector(-140.455183, -14.287692, 0), App.Vector(-131.392105, -10.061509, 0)), False)
sketch2.addGeometry(Part.ArcOfCircle(Part.Circle(App.Vector(-128.856395, -15.499356, 0), App.Vector(0, 0, 1), 6), math.radians(-65), math.radians(115)), False)
sketch2.addGeometry(Part.ArcOfCircle(Part.Circle(App.Vector(-65.41485, 14.083922, 0), App.Vector(0, 0, 1), 6), math.radians(-65), math.radians(115)), False)
sketch2.addGeometry(Part.LineSegment(App.Vector(-62.879141, 8.646076, 0), App.Vector(-71.942218, 4.419893, 0)), False)
sketch2.addGeometry(Part.ArcOfCircle(Part.Circle(App.Vector(-74.477928, 9.85774, 0), App.Vector(0, 0, 1), 6), math.radians(115), math.radians(295)), False)
sketch2.addGeometry(Part.LineSegment(App.Vector(-77.013638, 15.295587, 0), App.Vector(-67.95056, 19.521769, 0)), False)
sketch2.addGeometry(Part.LineSegment(App.Vector(-38.69254, 4.930214, 0), App.Vector(33.812082, -28.879247, 0)), False)
sketch2.addGeometry(Part.LineSegment(App.Vector(33.812082, -28.879247, 0), App.Vector(38.343621, -30.992338, 0)), False)
sketch2.addGeometry(Part.ArcOfCircle(Part.Circle(App.Vector(42.612066, -21.83863, 0), App.Vector(0, 0, 1), 10.1), math.radians(-115), math.radians(65)), False)
sketch2.addGeometry(Part.LineSegment(App.Vector(46.88051, -12.684921, 0), App.Vector(42.348971, -10.57183, 0)), False)
sketch2.addGeometry(Part.LineSegment(App.Vector(42.348971, -10.57183, 0), App.Vector(-30.155652, 23.237631, 0)), False)
sketch2.addGeometry(Part.LineSegment(App.Vector(-30.155652, 23.237631, 0), App.Vector(-34.687191, 25.350722, 0)), False)
sketch2.addGeometry(Part.ArcOfCircle(Part.Circle(App.Vector(-38.955635, 16.197014, 0), App.Vector(0, 0, 1), 10.1), math.radians(65), math.radians(245)), False)
sketch2.addGeometry(Part.LineSegment(App.Vector(-43.224079, 7.043305, 0), App.Vector(-38.69254, 4.930214, 0)), False)
sketch2.addGeometry(Part.LineSegment(App.Vector(31.553159, -10.061509, 0), App.Vector(40.616236, -14.287692, 0)), False)
sketch2.addGeometry(Part.ArcOfCircle(Part.Circle(App.Vector(38.080527, -19.725539, 0), App.Vector(0, 0, 1), 6), math.radians(-115), math.radians(65)), False)
sketch2.addGeometry(Part.LineSegment(App.Vector(35.544817, -25.163385, 0), App.Vector(26.481739, -20.937203, 0)), False)
sketch2.addGeometry(Part.ArcOfCircle(Part.Circle(App.Vector(29.017449, -15.499356, 0), App.Vector(0, 0, 1), 6), math.radians(65), math.radians(245)), False)
sketch2.addGeometry(Part.LineSegment(App.Vector(-27.896728, 4.419893, 0), App.Vector(-36.959806, 8.646076, 0)), False)
sketch2.addGeometry(Part.ArcOfCircle(Part.Circle(App.Vector(-34.424096, 14.083922, 0), App.Vector(0, 0, 1), 6), math.radians(65), math.radians(245)), False)
sketch2.addGeometry(Part.LineSegment(App.Vector(-31.888386, 19.521769, 0), App.Vector(-22.825309, 15.295587, 0)), False)
sketch2.addGeometry(Part.ArcOfCircle(Part.Circle(App.Vector(-25.361018, 9.85774, 0), App.Vector(0, 0, 1), 6), math.radians(-115), math.radians(65)), False)
sketch2.addConstraint(Sketcher.Constraint("Coincident", 0, 2, 1, 1))
sketch2.addConstraint(Sketcher.Constraint("Coincident", 1, 2, 2, 1))
sketch2.addConstraint(Sketcher.Constraint("Tangent", 2, 2, 3, 1))
sketch2.addConstraint(Sketcher.Constraint("Tangent", 3, 2, 4, 1))
sketch2.addConstraint(Sketcher.Constraint("Coincident", 4, 2, 5, 1))
sketch2.addConstraint(Sketcher.Constraint("Coincident", 5, 2, 6, 1))
sketch2.addConstraint(Sketcher.Constraint("Tangent", 6, 2, 7, 1))
sketch2.addConstraint(Sketcher.Constraint("Tangent", 7, 2, 0, 1))
sketch2.addConstraint(Sketcher.Constraint("Tangent", 8, 1, 9, 1))
sketch2.addConstraint(Sketcher.Constraint("Tangent", 9, 2, 10, 2))
sketch2.addConstraint(Sketcher.Constraint("Tangent", 10, 1, 11, 1))
sketch2.addConstraint(Sketcher.Constraint("Tangent", 11, 2, 8, 2))
sketch2.addConstraint(Sketcher.Constraint("Tangent", 12, 2, 13, 2))
sketch2.addConstraint(Sketcher.Constraint("Tangent", 13, 1, 14, 1))
sketch2.addConstraint(Sketcher.Constraint("Tangent", 14, 2, 15, 2))
sketch2.addConstraint(Sketcher.Constraint("Tangent", 15, 1, 12, 1))
sketch2.addConstraint(Sketcher.Constraint("Coincident", 16, 2, 17, 1))
sketch2.addConstraint(Sketcher.Constraint("Coincident", 17, 2, 18, 1))
sketch2.addConstraint(Sketcher.Constraint("Tangent", 18, 2, 19, 1))
sketch2.addConstraint(Sketcher.Constraint("Tangent", 19, 2, 20, 1))
sketch2.addConstraint(Sketcher.Constraint("Coincident", 20, 2, 21, 1))
sketch2.addConstraint(Sketcher.Constraint("Coincident", 21, 2, 22, 1))
sketch2.addConstraint(Sketcher.Constraint("Tangent", 22, 2, 23, 1))
sketch2.addConstraint(Sketcher.Constraint("Tangent", 23, 2, 16, 1))
sketch2.addConstraint(Sketcher.Constraint("Tangent", 24, 2, 25, 2))
sketch2.addConstraint(Sketcher.Constraint("Tangent", 25, 1, 26, 1))
sketch2.addConstraint(Sketcher.Constraint("Tangent", 26, 2, 27, 2))
sketch2.addConstraint(Sketcher.Constraint("Tangent", 27, 1, 24, 1))
sketch2.addConstraint(Sketcher.Constraint("Tangent", 28, 2, 29, 2))
sketch2.addConstraint(Sketcher.Constraint("Tangent", 29, 1, 30, 1))
sketch2.addConstraint(Sketcher.Constraint("Tangent", 30, 2, 31, 2))
sketch2.addConstraint(Sketcher.Constraint("Tangent", 31, 1, 28, 1))
sketch2.addConstraint(Sketcher.Constraint("Coincident", 32, 2, 33, 1))
sketch2.addConstraint(Sketcher.Constraint("Tangent", 33, 2, 34, 1))
sketch2.addConstraint(Sketcher.Constraint("Tangent", 34, 2, 35, 1))
sketch2.addConstraint(Sketcher.Constraint("Coincident", 35, 2, 36, 1))
sketch2.addConstraint(Sketcher.Constraint("Coincident", 36, 2, 37, 1))
sketch2.addConstraint(Sketcher.Constraint("Tangent", 37, 2, 38, 1))
sketch2.addConstraint(Sketcher.Constraint("Tangent", 38, 2, 39, 1))
sketch2.addConstraint(Sketcher.Constraint("Coincident", 39, 2, 32, 1))
sketch2.addConstraint(Sketcher.Constraint("Tangent", 40, 2, 41, 2))
sketch2.addConstraint(Sketcher.Constraint("Tangent", 41, 1, 42, 1))
sketch2.addConstraint(Sketcher.Constraint("Tangent", 42, 2, 43, 2))
sketch2.addConstraint(Sketcher.Constraint("Tangent", 43, 1, 40, 1))
sketch2.addConstraint(Sketcher.Constraint("Tangent", 44, 1, 45, 1))
sketch2.addConstraint(Sketcher.Constraint("Tangent", 45, 2, 46, 2))
sketch2.addConstraint(Sketcher.Constraint("Tangent", 46, 1, 47, 1))
sketch2.addConstraint(Sketcher.Constraint("Tangent", 47, 2, 44, 2))
sketch2.addConstraint(Sketcher.Constraint("Coincident", 48, 2, 49, 1))
sketch2.addConstraint(Sketcher.Constraint("Tangent", 49, 2, 50, 1))
sketch2.addConstraint(Sketcher.Constraint("Tangent", 50, 2, 51, 1))
sketch2.addConstraint(Sketcher.Constraint("Coincident", 51, 2, 52, 1))
sketch2.addConstraint(Sketcher.Constraint("Coincident", 52, 2, 53, 1))
sketch2.addConstraint(Sketcher.Constraint("Tangent", 53, 2, 54, 1))
sketch2.addConstraint(Sketcher.Constraint("Tangent", 54, 2, 55, 1))
sketch2.addConstraint(Sketcher.Constraint("Coincident", 55, 2, 48, 1))
sketch2.addConstraint(Sketcher.Constraint("Tangent", 56, 2, 57, 2))
sketch2.addConstraint(Sketcher.Constraint("Tangent", 57, 1, 58, 1))
sketch2.addConstraint(Sketcher.Constraint("Tangent", 58, 2, 59, 2))
sketch2.addConstraint(Sketcher.Constraint("Tangent", 59, 1, 56, 1))
sketch2.addConstraint(Sketcher.Constraint("Tangent", 60, 2, 61, 2))
sketch2.addConstraint(Sketcher.Constraint("Tangent", 61, 1, 62, 1))
sketch2.addConstraint(Sketcher.Constraint("Tangent", 62, 2, 63, 2))
sketch2.addConstraint(Sketcher.Constraint("Tangent", 63, 1, 60, 1))
sketch2.addConstraint(Sketcher.Constraint("Equal", 3, 7))
sketch2.addConstraint(Sketcher.Constraint("Equal", 8, 10))
sketch2.addConstraint(Sketcher.Constraint("Equal", 10, 13))
sketch2.addConstraint(Sketcher.Constraint("Equal", 13, 15))
sketch2.addConstraint(Sketcher.Constraint("Equal", 7, 19))
sketch2.addConstraint(Sketcher.Constraint("Equal", 19, 23))
sketch2.addConstraint(Sketcher.Constraint("Equal", 15, 25))
sketch2.addConstraint(Sketcher.Constraint("Equal", 25, 27))
sketch2.addConstraint(Sketcher.Constraint("Equal", 27, 29))
sketch2.addConstraint(Sketcher.Constraint("Equal", 29, 31))
sketch2.addConstraint(Sketcher.Constraint("Equal", 23, 34))
sketch2.addConstraint(Sketcher.Constraint("Equal", 34, 38))
sketch2.addConstraint(Sketcher.Constraint("Equal", 31, 41))
sketch2.addConstraint(Sketcher.Constraint("Equal", 41, 43))
sketch2.addConstraint(Sketcher.Constraint("Equal", 43, 44))
sketch2.addConstraint(Sketcher.Constraint("Equal", 44, 46))
sketch2.addConstraint(Sketcher.Constraint("Equal", 38, 50))
sketch2.addConstraint(Sketcher.Constraint("Equal", 50, 54))
sketch2.addConstraint(Sketcher.Constraint("Equal", 46, 57))
sketch2.addConstraint(Sketcher.Constraint("Equal", 57, 59))
sketch2.addConstraint(Sketcher.Constraint("Equal", 59, 61))
sketch2.addConstraint(Sketcher.Constraint("Equal", 61, 63))
sketch2.addConstraint(Sketcher.Constraint("Parallel", 0, 1))
sketch2.addConstraint(Sketcher.Constraint("Parallel", 1, 2))
sketch2.addConstraint(Sketcher.Constraint("Parallel", 2, 4))
sketch2.addConstraint(Sketcher.Constraint("Parallel", 4, 5))
sketch2.addConstraint(Sketcher.Constraint("Parallel", 6, 9))
sketch2.addConstraint(Sketcher.Constraint("Parallel", 11, 12))
sketch2.addConstraint(Sketcher.Constraint("Parallel", 16, 17))
sketch2.addConstraint(Sketcher.Constraint("Parallel", 17, 18))
sketch2.addConstraint(Sketcher.Constraint("Parallel", 18, 20))
sketch2.addConstraint(Sketcher.Constraint("Parallel", 20, 21))
sketch2.addConstraint(Sketcher.Constraint("Parallel", 22, 24))
sketch2.addConstraint(Sketcher.Constraint("Parallel", 26, 28))
sketch2.addConstraint(Sketcher.Constraint("Parallel", 14, 32))
sketch2.addConstraint(Sketcher.Constraint("Parallel", 32, 33))
sketch2.addConstraint(Sketcher.Constraint("Parallel", 33, 35))
sketch2.addConstraint(Sketcher.Constraint("Parallel", 35, 36))
sketch2.addConstraint(Sketcher.Constraint("Parallel", 36, 37))
sketch2.addConstraint(Sketcher.Constraint("Parallel", 39, 40))
sketch2.addConstraint(Sketcher.Constraint("Parallel", 42, 45))
sketch2.addConstraint(Sketcher.Constraint("Parallel", 30, 48))
sketch2.addConstraint(Sketcher.Constraint("Parallel", 48, 49))
sketch2.addConstraint(Sketcher.Constraint("Parallel", 49, 51))
sketch2.addConstraint(Sketcher.Constraint("Parallel", 51, 52))
sketch2.addConstraint(Sketcher.Constraint("Parallel", 52, 53))
sketch2.addConstraint(Sketcher.Constraint("Parallel", 55, 56))
sketch2.addConstraint(Sketcher.Constraint("Parallel", 58, 60))
sketch2.addConstraint(Sketcher.Constraint("Horizontal", 3, 3, 19, 3))
sketch2.addConstraint(Sketcher.Constraint("Horizontal", 7, 3, 23, 3))
sketch2.addConstraint(Sketcher.Constraint("Horizontal", 10, 3, 25, 3))
sketch2.addConstraint(Sketcher.Constraint("Horizontal", 8, 3, 27, 3))
sketch2.addConstraint(Sketcher.Constraint("Horizontal", 13, 3, 29, 3))
sketch2.addConstraint(Sketcher.Constraint("Horizontal", 15, 3, 31, 3))
sketch2.addConstraint(Sketcher.Constraint("Horizontal", 34, 3, 50, 3))
sketch2.addConstraint(Sketcher.Constraint("Horizontal", 38, 3, 54, 3))
sketch2.addConstraint(Sketcher.Constraint("Horizontal", 41, 3, 57, 3))
sketch2.addConstraint(Sketcher.Constraint("Horizontal", 43, 3, 59, 3))
sketch2.addConstraint(Sketcher.Constraint("Horizontal", 44, 3, 61, 3))
sketch2.addConstraint(Sketcher.Constraint("Horizontal", 46, 3, 63, 3))
sketch2.addConstraint(Sketcher.Constraint("Horizontal", 5, 2, 16, 2))
sketch2.addConstraint(Sketcher.Constraint("Horizontal", 4, 2, 17, 2))
sketch2.addConstraint(Sketcher.Constraint("Horizontal", 3, 2, 18, 2))
sketch2.addConstraint(Sketcher.Constraint("Horizontal", 1, 2, 20, 2))
sketch2.addConstraint(Sketcher.Constraint("Horizontal", 0, 2, 21, 2))
sketch2.addConstraint(Sketcher.Constraint("Horizontal", 35, 2, 48, 2))
sketch2.addConstraint(Sketcher.Constraint("Horizontal", 32, 2, 51, 2))
sketch2.addConstraint(Sketcher.Constraint("Horizontal", 39, 2, 52, 2))
sketch2.addConstraint(Sketcher.Constraint("Horizontal", 36, 2, 55, 2))
sketch2.addConstraint(Sketcher.Constraint("Equal", 0, 2))
sketch2.addConstraint(Sketcher.Constraint("Equal", 2, 4))
sketch2.addConstraint(Sketcher.Constraint("Equal", 1, 5))
sketch2.addConstraint(Sketcher.Constraint("Equal", 11, 12))
sketch2.addConstraint(Sketcher.Constraint("Equal", 21, 32))
sketch2.addConstraint(Sketcher.Constraint("Equal", 22, 33))
sketch2.addConstraint(Sketcher.Constraint("Equal", 33, 35))
sketch2.addConstraint(Sketcher.Constraint("Equal", 32, 36))
sketch2.addConstraint(Sketcher.Constraint("Equal", 35, 37))
sketch2.addConstraint(Sketcher.Constraint("Equal", 30, 40))
sketch2.addConstraint(Sketcher.Constraint("Equal", 42, 45))
sketch2.addConstraint(Sketcher.Constraint("Radius", 8, 6.0))
sketch2.addConstraint(Sketcher.Constraint("Radius", 3, 10.1))
sketch2.addConstraint(Sketcher.Constraint("Angle", 0, Q("25 deg")))
sketch2.addConstraint(Sketcher.Constraint("Distance", 0, 5.0))
sketch2.addConstraint(Sketcher.Constraint("Distance", 1, 80.0))
sketch2.addConstraint(Sketcher.Constraint("Distance", 9, 10.0))
sketch2.addConstraint(Sketcher.Constraint("DistanceX", 19, 2, -1, 1, 13.640801))
sketch2.addConstraint(Sketcher.Constraint("DistanceX", 3, 3, -1, 1, 90.466589))
sketch2.addConstraint(Sketcher.Constraint("DistanceY", -1, 1, 3, 3, 79.638559))
sketch2.addConstraint(Sketcher.Constraint("DistanceY", -1, 1, 8, 3, 47.942189))
sketch2.addConstraint(Sketcher.Constraint("DistanceX", 10, 3, -1, 1, 167.502751))
sketch2.addConstraint(Sketcher.Constraint("DistanceX", 13, 3, -1, 1, 94.998128))
sketch2.addConstraint(Sketcher.Constraint("DistanceX", -1, 1, 31, 3, 4.22226))
sketch2.addConstraint(Sketcher.Constraint("DistanceY", 34, 3, -1, 1, 21.83863))
sketch2.addConstraint(Sketcher.Constraint("DistanceX", 38, 3, -1, 1, 60.883311))
sketch2.addConstraint(Sketcher.Constraint("DistanceY", 41, 3, -1, 1, 19.725539))
sketch2.addConstraint(Sketcher.Constraint("DistanceX", 44, 3, -1, 1, 65.41485))
sketch2.addConstraint(Sketcher.Constraint("DistanceY", -1, 1, 46, 3, 9.85774))
sketch2.addConstraint(Sketcher.Constraint("DistanceX", -1, 1, 59, 3, 29.017449))
sketch2.addConstraint(Sketcher.Constraint("DistanceX", 63, 3, -1, 1, 25.361018))
sketch2.addConstraint(Sketcher.Constraint("DistanceY", -1, 1, 13, 1, 72.087621))
sketch2.addConstraint(Sketcher.Constraint("DistanceX", -1, 1, 49, 2, 38.343621))
sketch2.addConstraint(Sketcher.Constraint("DistanceX", -1, 1, 25, 3, 67.663805))
sketch2.addConstraint(Sketcher.Constraint("DistanceX", 41, 3, -1, 1, 137.919473))
sketch2.setExpression("Constraints[144]", "Params.sketch2_radius")
sketch2.setExpression("Constraints[145]", "Params.sketch2_radius2")
sketch2.setExpression("Constraints[147]", "Params.sketch2_length")
sketch2.setExpression("Constraints[148]", "Params.sketch2_length2")
sketch2.setExpression("Constraints[149]", "Params.sketch2_length3")
pad2 = doc.addObject("PartDesign::Pad", "Pad001")
body.addObject(pad2)
pad2.Profile = sketch2
pad2.setExpression("Length", "Params.pad2_length")

doc.recompute()
